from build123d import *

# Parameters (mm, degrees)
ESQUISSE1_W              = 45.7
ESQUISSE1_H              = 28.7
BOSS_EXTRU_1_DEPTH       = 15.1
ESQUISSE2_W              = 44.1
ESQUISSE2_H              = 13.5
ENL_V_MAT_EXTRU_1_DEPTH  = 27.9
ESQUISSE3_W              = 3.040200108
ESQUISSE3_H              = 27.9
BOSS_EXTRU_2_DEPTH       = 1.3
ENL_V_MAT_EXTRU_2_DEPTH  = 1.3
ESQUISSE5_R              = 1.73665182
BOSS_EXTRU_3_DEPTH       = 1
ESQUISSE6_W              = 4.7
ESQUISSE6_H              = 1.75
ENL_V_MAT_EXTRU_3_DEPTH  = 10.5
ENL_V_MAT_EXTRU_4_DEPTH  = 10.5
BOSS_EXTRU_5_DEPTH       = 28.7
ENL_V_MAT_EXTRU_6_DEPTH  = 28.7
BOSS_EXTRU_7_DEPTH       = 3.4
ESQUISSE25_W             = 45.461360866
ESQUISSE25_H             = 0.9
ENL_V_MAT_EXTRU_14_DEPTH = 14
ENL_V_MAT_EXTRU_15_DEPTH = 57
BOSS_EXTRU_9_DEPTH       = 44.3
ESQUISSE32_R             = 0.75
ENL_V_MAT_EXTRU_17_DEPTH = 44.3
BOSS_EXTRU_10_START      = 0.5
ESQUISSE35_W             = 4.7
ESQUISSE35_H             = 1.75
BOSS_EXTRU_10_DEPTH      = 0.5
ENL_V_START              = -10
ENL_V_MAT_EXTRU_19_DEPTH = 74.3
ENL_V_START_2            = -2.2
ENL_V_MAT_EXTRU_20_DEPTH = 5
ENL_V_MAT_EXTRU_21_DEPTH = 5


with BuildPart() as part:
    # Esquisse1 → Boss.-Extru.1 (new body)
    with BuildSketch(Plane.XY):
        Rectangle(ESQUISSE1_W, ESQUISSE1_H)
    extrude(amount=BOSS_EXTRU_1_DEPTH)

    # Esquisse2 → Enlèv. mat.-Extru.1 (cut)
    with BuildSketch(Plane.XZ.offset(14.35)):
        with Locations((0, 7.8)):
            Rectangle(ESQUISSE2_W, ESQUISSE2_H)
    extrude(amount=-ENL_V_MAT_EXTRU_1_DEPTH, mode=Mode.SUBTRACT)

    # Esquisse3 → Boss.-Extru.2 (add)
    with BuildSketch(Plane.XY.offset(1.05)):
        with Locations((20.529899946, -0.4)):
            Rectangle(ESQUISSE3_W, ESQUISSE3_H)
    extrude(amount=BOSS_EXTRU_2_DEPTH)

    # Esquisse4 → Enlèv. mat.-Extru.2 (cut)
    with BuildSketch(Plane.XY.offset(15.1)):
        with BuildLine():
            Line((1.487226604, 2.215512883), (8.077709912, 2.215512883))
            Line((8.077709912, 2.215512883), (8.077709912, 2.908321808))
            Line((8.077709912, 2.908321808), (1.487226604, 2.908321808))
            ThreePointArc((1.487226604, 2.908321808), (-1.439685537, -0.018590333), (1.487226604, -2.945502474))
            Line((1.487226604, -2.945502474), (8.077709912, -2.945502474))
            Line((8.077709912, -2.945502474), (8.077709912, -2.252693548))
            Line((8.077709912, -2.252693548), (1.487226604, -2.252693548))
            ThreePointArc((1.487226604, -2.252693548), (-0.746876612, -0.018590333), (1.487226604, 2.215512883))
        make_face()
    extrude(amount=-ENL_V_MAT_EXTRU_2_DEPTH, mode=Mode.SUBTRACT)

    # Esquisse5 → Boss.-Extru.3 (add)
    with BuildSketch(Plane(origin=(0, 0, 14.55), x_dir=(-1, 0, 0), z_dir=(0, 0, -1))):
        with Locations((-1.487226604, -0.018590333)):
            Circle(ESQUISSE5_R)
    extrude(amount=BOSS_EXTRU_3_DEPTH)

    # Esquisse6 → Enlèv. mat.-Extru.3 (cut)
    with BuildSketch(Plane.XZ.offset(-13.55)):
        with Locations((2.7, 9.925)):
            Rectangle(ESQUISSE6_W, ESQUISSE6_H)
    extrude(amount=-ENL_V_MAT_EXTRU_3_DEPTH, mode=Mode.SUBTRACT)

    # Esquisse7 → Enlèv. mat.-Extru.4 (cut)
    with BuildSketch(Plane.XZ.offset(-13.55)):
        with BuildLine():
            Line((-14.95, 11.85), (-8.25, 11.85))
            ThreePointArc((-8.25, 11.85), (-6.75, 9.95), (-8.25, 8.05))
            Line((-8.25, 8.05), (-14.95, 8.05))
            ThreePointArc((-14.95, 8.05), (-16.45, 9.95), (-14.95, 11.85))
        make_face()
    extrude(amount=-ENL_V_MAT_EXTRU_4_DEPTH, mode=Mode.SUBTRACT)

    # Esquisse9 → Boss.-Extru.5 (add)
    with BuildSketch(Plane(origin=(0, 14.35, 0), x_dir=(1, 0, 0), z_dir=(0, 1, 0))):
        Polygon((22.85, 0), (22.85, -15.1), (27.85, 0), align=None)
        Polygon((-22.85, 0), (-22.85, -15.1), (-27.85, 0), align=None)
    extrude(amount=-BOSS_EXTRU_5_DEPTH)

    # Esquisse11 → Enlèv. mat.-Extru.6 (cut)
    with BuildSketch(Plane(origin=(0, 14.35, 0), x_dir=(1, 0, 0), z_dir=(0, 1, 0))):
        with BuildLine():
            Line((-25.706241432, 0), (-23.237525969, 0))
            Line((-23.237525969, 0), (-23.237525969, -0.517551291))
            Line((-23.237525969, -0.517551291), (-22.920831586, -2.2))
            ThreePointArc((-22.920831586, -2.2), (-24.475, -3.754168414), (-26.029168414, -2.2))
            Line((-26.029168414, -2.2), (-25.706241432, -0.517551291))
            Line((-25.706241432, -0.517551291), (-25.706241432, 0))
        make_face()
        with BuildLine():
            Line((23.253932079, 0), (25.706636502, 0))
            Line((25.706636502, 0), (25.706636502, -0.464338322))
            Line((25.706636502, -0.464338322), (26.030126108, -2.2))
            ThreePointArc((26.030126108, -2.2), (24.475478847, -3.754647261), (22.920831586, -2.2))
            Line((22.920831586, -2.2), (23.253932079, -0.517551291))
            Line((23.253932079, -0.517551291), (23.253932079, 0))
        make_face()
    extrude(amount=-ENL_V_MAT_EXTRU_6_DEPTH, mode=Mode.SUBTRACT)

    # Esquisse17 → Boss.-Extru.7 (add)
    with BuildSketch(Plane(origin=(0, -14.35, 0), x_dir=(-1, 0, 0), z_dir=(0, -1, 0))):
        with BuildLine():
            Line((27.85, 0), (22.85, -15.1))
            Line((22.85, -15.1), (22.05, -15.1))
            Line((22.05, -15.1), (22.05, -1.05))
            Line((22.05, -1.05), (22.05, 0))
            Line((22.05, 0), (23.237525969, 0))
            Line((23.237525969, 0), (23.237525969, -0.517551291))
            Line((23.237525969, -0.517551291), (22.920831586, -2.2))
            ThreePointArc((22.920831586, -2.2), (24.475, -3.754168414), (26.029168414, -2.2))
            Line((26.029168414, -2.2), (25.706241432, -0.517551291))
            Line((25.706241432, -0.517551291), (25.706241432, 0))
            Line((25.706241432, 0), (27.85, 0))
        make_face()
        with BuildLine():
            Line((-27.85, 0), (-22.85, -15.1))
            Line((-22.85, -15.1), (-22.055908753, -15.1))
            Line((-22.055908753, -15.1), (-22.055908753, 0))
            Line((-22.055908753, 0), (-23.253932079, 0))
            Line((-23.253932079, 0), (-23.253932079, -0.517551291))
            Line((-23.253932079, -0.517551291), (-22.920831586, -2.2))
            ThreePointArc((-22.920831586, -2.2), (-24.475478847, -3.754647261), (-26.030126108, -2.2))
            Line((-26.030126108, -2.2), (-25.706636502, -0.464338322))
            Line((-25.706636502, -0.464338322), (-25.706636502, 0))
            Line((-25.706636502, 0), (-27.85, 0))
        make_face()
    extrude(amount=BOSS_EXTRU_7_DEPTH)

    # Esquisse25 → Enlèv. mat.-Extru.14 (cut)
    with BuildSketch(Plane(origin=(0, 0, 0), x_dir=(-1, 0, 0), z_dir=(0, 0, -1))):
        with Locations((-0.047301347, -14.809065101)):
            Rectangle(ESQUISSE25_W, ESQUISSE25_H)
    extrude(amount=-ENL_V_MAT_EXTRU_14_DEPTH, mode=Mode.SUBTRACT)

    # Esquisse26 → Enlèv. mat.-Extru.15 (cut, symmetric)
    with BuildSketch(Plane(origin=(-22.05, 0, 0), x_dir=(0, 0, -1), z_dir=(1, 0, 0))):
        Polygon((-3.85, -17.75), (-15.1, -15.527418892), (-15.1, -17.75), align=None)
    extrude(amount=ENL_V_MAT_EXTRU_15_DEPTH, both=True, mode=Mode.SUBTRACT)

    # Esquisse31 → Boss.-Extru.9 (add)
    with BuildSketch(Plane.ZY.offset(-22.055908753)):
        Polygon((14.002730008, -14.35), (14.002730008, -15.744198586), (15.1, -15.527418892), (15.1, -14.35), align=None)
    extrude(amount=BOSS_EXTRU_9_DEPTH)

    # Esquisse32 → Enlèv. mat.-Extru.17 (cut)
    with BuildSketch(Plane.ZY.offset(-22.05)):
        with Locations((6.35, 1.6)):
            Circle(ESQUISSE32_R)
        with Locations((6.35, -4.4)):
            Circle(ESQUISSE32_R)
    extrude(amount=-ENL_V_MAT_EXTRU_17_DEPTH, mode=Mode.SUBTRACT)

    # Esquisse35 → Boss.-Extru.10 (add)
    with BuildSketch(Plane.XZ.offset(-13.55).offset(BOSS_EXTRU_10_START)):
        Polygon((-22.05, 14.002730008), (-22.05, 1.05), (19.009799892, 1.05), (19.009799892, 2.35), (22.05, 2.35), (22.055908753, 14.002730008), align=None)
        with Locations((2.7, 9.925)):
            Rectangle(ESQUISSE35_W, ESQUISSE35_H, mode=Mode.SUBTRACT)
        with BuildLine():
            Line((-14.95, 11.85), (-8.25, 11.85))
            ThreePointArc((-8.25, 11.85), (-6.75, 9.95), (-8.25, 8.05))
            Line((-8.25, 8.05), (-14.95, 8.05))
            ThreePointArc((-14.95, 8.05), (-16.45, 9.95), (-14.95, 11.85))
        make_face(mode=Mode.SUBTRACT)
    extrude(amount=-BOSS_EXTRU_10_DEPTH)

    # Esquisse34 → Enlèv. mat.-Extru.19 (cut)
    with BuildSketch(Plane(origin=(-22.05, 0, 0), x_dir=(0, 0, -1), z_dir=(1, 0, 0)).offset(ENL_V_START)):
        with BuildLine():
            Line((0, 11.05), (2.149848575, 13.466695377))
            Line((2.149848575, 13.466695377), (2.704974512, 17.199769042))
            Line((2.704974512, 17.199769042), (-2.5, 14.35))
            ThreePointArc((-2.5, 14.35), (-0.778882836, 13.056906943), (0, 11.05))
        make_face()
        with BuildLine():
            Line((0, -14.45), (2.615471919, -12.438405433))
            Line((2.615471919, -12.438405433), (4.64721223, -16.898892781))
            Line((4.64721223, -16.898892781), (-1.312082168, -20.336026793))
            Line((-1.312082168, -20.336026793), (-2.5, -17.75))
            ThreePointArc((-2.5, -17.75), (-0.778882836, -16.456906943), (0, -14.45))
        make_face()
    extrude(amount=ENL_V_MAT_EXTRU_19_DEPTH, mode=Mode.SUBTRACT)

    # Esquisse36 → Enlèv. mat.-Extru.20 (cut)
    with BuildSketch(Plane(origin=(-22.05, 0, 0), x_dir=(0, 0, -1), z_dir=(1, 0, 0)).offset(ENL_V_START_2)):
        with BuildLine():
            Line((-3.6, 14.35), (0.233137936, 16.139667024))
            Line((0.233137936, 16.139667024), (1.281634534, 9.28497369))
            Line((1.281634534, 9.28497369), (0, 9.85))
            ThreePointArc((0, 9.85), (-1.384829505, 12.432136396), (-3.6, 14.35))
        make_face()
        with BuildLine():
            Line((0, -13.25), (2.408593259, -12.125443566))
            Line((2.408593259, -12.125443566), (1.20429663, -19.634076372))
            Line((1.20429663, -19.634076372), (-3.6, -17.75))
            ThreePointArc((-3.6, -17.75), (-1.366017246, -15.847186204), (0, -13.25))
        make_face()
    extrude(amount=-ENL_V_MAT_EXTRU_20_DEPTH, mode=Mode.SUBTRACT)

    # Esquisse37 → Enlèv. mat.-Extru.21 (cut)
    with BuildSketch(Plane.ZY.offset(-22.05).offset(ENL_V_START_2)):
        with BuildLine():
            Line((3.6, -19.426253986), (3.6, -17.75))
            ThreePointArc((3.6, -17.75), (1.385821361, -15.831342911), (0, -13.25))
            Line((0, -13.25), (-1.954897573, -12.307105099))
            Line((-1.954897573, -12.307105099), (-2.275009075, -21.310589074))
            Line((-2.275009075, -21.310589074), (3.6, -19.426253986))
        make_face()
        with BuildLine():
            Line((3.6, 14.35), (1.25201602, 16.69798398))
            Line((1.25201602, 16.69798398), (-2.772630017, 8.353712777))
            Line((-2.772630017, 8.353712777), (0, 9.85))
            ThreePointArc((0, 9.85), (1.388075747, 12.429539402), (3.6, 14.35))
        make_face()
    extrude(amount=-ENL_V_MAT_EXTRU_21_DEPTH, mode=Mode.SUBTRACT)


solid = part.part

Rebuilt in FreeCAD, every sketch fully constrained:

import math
import FreeCAD as App
import Part
import Sketcher
Q = App.Units.Quantity

doc = App.newDocument("Part")
params = doc.addObject("Spreadsheet::Sheet", "Params")
for row, (alias, value) in enumerate([
    ("sketch1_width", "45.7 mm"),
    ("sketch1_height", "28.7 mm"),
    ("pad1_length", "15.1 mm"),
    ("sketch2_width", "44.1 mm"),
    ("sketch2_height", "13.5 mm"),
    ("pocket1_length", "27.9 mm"),
    ("sketch3_height", "27.9 mm"),
    ("pad2_length", "1.3 mm"),
    ("pocket2_length", "1.3 mm"),
    ("pad3_length", "1 mm"),
    ("sketch6_width", "4.7 mm"),
    ("sketch6_height", "1.75 mm"),
    ("pocket3_length", "10.5 mm"),
    ("sketch7_width", "6.7 mm"),
    ("pocket4_length", "10.5 mm"),
    ("sketch8_width", "5 mm"),
    ("sketch8_height", "15.1 mm"),
    ("pad4_length", "28.7 mm"),
    ("pocket5_length", "28.7 mm"),
    ("sketch10_width", "0.8 mm"),
    ("sketch10_height", "15.1 mm"),
    ("pad5_length", "3.4 mm"),
    ("sketch11_height", "0.9 mm"),
    ("pocket6_length", "14 mm"),
    ("sketch12_height", "11.25 mm"),
    ("pocket7_length", "114 mm"),
    ("pad6_length", "44.3 mm"),
    ("sketch14_diameter", "1.5 mm"),
    ("pocket8_length", "44.3 mm"),
    ("sketch15_width", "6.7 mm"),
    ("sketch15_width2", "4.7 mm"),
    ("sketch15_height", "1.3 mm"),
    ("sketch15_height2", "1.75 mm"),
    ("sketch15_height3", "1.9 mm"),
    ("pad7_length", "0.5 mm"),
    ("pocket9_length", "74.3 mm"),
    ("pocket10_length", "5 mm"),
    ("pocket11_length", "5 mm"),
], start=1):
    params.set(f"A{row}", alias)
    params.set(f"B{row}", "=" + value)
    params.setAlias(f"B{row}", alias)

body = doc.addObject("PartDesign::Body", "Body")

# Sketch on XY plane
sketch1 = doc.addObject("Sketcher::SketchObject", "Sketch")
body.addObject(sketch1)
sketch1.AttachmentSupport = (doc.XY_Plane, [""])
sketch1.MapMode = "FlatFace"
sketch1.addGeometry([
    Part.LineSegment(App.Vector(-23, 14, 0), App.Vector(-23, -14, 0)),
    Part.LineSegment(App.Vector(-23, -14, 0), App.Vector(23, -14, 0)),
    Part.LineSegment(App.Vector(23, -14, 0), App.Vector(23, 14, 0)),
    Part.LineSegment(App.Vector(23, 14, 0), App.Vector(-23, 14, 0)),
], False)
sketch1.addConstraint([
    Sketcher.Constraint("Coincident", 0, 2, 1, 1),
    Sketcher.Constraint("Coincident", 1, 2, 2, 1),
    Sketcher.Constraint("Coincident", 2, 2, 3, 1),
    Sketcher.Constraint("Coincident", 3, 2, 0, 1),
    Sketcher.Constraint("Vertical", 0),
    Sketcher.Constraint("Horizontal", 1),
    Sketcher.Constraint("Vertical", 2),
    Sketcher.Constraint("Horizontal", 3),
    Sketcher.Constraint("Symmetric", 0, 2, 2, 2, -1, 1),
    Sketcher.Constraint("DistanceX", 1, 1, 1, 2, 45.7),
    Sketcher.Constraint("DistanceY", 0, 2, 0, 1, 28.7),
])
sketch1.setExpression("Constraints[9]", "Params.sketch1_width")
sketch1.setExpression("Constraints[10]", "Params.sketch1_height")
pad1 = doc.addObject("PartDesign::Pad", "Pad")
body.addObject(pad1)
pad1.Profile = sketch1
pad1.setExpression("Length", "Params.pad1_length")

# Sketch on XZ plane
sketch2 = doc.addObject("Sketcher::SketchObject", "Sketch001")
body.addObject(sketch2)
sketch2.AttachmentSupport = (doc.XZ_Plane, [""])
sketch2.MapMode = "FlatFace"
sketch2.AttachmentOffset = App.Placement(App.Vector(0, 0, 14.35), App.Rotation())
sketch2.addGeometry([
    Part.LineSegment(App.Vector(-22, 15, 0), App.Vector(-22, 1, 0)),
    Part.LineSegment(App.Vector(-22, 1, 0), App.Vector(22, 1, 0)),
    Part.LineSegment(App.Vector(22, 1, 0), App.Vector(22, 15, 0)),
    Part.LineSegment(App.Vector(22, 15, 0), App.Vector(-22, 15, 0)),
], False)
sketch2.addConstraint([
    Sketcher.Constraint("Coincident", 0, 2, 1, 1),
    Sketcher.Constraint("Coincident", 1, 2, 2, 1),
    Sketcher.Constraint("Coincident", 2, 2, 3, 1),
    Sketcher.Constraint("Coincident", 3, 2, 0, 1),
    Sketcher.Constraint("Vertical", 0),
    Sketcher.Constraint("Horizontal", 1),
    Sketcher.Constraint("Vertical", 2),
    Sketcher.Constraint("Horizontal", 3),
    Sketcher.Constraint("DistanceX", 1, 1, 1, 2, 44.1),
    Sketcher.Constraint("DistanceY", 0, 2, 0, 1, 13.5),
    Sketcher.Constraint("DistanceX", 0, 2, -1, 1, 22.05),
    Sketcher.Constraint("DistanceY", -1, 1, 0, 2, 1.05),
])
sketch2.setExpression("Constraints[8]", "Params.sketch2_width")
sketch2.setExpression("Constraints[9]", "Params.sketch2_height")
pocket1 = doc.addObject("PartDesign::Pocket", "Pocket")
body.addObject(pocket1)
pocket1.Profile = sketch2
pocket1.setExpression("Length", "Params.pocket1_length")

# Sketch on XY plane
sketch3 = doc.addObject("Sketcher::SketchObject", "Sketch002")
body.addObject(sketch3)
sketch3.AttachmentSupport = (doc.XY_Plane, [""])
sketch3.MapMode = "FlatFace"
sketch3.AttachmentOffset = App.Placement(App.Vector(0, 0, 1.05), App.Rotation())
sketch3.addGeometry([
    Part.LineSegment(App.Vector(19, 13.6, 0), App.Vector(19, -14.3, 0)),
    Part.LineSegment(App.Vector(19, -14.3, 0), App.Vector(22.1, -14.3, 0)),
    Part.LineSegment(App.Vector(22.1, -14.3, 0), App.Vector(22.1, 13.6, 0)),
    Part.LineSegment(App.Vector(22.1, 13.6, 0), App.Vector(19, 13.6, 0)),
], False)
sketch3.addConstraint([
    Sketcher.Constraint("Coincident", 0, 2, 1, 1),
    Sketcher.Constraint("Coincident", 1, 2, 2, 1),
    Sketcher.Constraint("Coincident", 2, 2, 3, 1),
    Sketcher.Constraint("Coincident", 3, 2, 0, 1),
    Sketcher.Constraint("Vertical", 0),
    Sketcher.Constraint("Horizontal", 1),
    Sketcher.Constraint("Vertical", 2),
    Sketcher.Constraint("Horizontal", 3),
    Sketcher.Constraint("DistanceY", 0, 2, 0, 1, 27.9),
    Sketcher.Constraint("DistanceY", 0, 2, -1, 1, 14.35),
    Sketcher.Constraint("DistanceX", -1, 1, 1, 2, 22.05),
    Sketcher.Constraint("DistanceX", 1, 1, 1, 2, 3.0402),
])
sketch3.setExpression("Constraints[8]", "Params.sketch3_height")
pad2 = doc.addObject("PartDesign::Pad", "Pad001")
body.addObject(pad2)
pad2.Profile = sketch3
pad2.setExpression("Length", "Params.pad2_length")

# Sketch on XY plane
sketch4 = doc.addObject("Sketcher::SketchObject", "Sketch003")
body.addObject(sketch4)
sketch4.AttachmentSupport = (doc.XY_Plane, [""])
sketch4.MapMode = "FlatFace"
sketch4.AttachmentOffset = App.Placement(App.Vector(0, 0, 15.1), App.Rotation())
sketch4.addGeometry([
    Part.LineSegment(App.Vector(1.5, 2.2, 0), App.Vector(8.1, 2.2, 0)),  # 0
    Part.LineSegment(App.Vector(8.1, 2.2, 0), App.Vector(8.1, 2.9, 0)),  # 1
    Part.LineSegment(App.Vector(8.1, 2.9, 0), App.Vector(1.5, 2.9, 0)),  # 2
    Part.ArcOfCircle(Part.Circle(App.Vector(1.5, 0, 0), App.Vector(0, 0, 1), 2.9), math.radians(90), math.radians(270)),  # 3
    Part.LineSegment(App.Vector(1.5, -2.9, 0), App.Vector(8.1, -2.9, 0)),  # 4
    Part.LineSegment(App.Vector(8.1, -2.9, 0), App.Vector(8.1, -2.3, 0)),  # 5
    Part.LineSegment(App.Vector(8.1, -2.3, 0), App.Vector(1.5, -2.3, 0)),  # 6
    Part.ArcOfCircle(Part.Circle(App.Vector(1.5, 0, 0), App.Vector(0, 0, 1), 2.2), math.radians(90), math.radians(270)),  # 7
], False)
sketch4.addConstraint([
    Sketcher.Constraint("Coincident", 0, 2, 1, 1),
    Sketcher.Constraint("Coincident", 1, 2, 2, 1),
    Sketcher.Constraint("Tangent", 2, 2, 3, 1),
    Sketcher.Constraint("Tangent", 3, 2, 4, 1),
    Sketcher.Constraint("Coincident", 4, 2, 5, 1),
    Sketcher.Constraint("Coincident", 5, 2, 6, 1),
    Sketcher.Constraint("Tangent", 6, 2, 7, 2),
    Sketcher.Constraint("Tangent", 7, 1, 0, 1),
    Sketcher.Constraint("Horizontal", 0),
    Sketcher.Constraint("Vertical", 1),
    Sketcher.Constraint("Horizontal", 2),
    Sketcher.Constraint("Horizontal", 4),
    Sketcher.Constraint("Vertical", 5),
    Sketcher.Constraint("Horizontal", 6),
    Sketcher.Constraint("Coincident", 7, 3, 3, 3),
    Sketcher.Constraint("Vertical", 1, 2, 4, 2),
    Sketcher.Constraint("Radius", 3, 2.926912),
    Sketcher.Constraint("Radius", 7, 2.234103),
    Sketcher.Constraint("DistanceX", 0, 1, 0, 2, 6.590483),
    Sketcher.Constraint("DistanceY", 3, 3, -1, 1, 0.01859),
    Sketcher.Constraint("DistanceX", -1, 1, 0, 2, 8.07771),
])
pocket2 = doc.addObject("PartDesign::Pocket", "Pocket001")
body.addObject(pocket2)
pocket2.Profile = sketch4
pocket2.setExpression("Length", "Params.pocket2_length")

# Sketch on XY plane
sketch5 = doc.addObject("Sketcher::SketchObject", "Sketch004")
body.addObject(sketch5)
sketch5.AttachmentSupport = (doc.XY_Plane, [""])
sketch5.MapMode = "FlatFace"
sketch5.AttachmentOffset = App.Placement(App.Vector(0, 0, 14.55), App.Rotation())
sketch5.addGeometry(Part.Circle(App.Vector(1.5, 0, 0), App.Vector(0, 0, 1), 1.7), False)
sketch5.addConstraint([
    Sketcher.Constraint("Diameter", 0, 3.473304),
    Sketcher.Constraint("DistanceY", 0, 3, -1, 1, 0.01859),
    Sketcher.Constraint("DistanceX", -1, 1, 0, 3, 1.487227),
])
pad3 = doc.addObject("PartDesign::Pad", "Pad002")
body.addObject(pad3)
pad3.Profile = sketch5
pad3.setExpression("Length", "Params.pad3_length")
pad3.Reversed = True

# Sketch on XZ plane
sketch6 = doc.addObject("Sketcher::SketchObject", "Sketch005")
body.addObject(sketch6)
sketch6.AttachmentSupport = (doc.XZ_Plane, [""])
sketch6.MapMode = "FlatFace"
sketch6.AttachmentOffset = App.Placement(App.Vector(0, 0, -13.55), App.Rotation())
sketch6.addGeometry([
    Part.LineSegment(App.Vector(0.3, 10.8, 0), App.Vector(0.3, 9.1, 0)),
    Part.LineSegment(App.Vector(0.3, 9.1, 0), App.Vector(5, 9.1, 0)),
    Part.LineSegment(App.Vector(5, 9.1, 0), App.Vector(5, 10.8, 0)),
    Part.LineSegment(App.Vector(5, 10.8, 0), App.Vector(0.3, 10.8, 0)),
], False)
sketch6.addConstraint([
    Sketcher.Constraint("Coincident", 0, 2, 1, 1),
    Sketcher.Constraint("Coincident", 1, 2, 2, 1),
    Sketcher.Constraint("Coincident", 2, 2, 3, 1),
    Sketcher.Constraint("Coincident", 3, 2, 0, 1),
    Sketcher.Constraint("Vertical", 0),
    Sketcher.Constraint("Horizontal", 1),
    Sketcher.Constraint("Vertical", 2),
    Sketcher.Constraint("Horizontal", 3),
    Sketcher.Constraint("DistanceX", 1, 1, 1, 2, 4.7),
    Sketcher.Constraint("DistanceY", 0, 2, 0, 1, 1.75),
    Sketcher.Constraint("DistanceY", -1, 1, 2, 2, 10.8),
    Sketcher.Constraint("DistanceX", -1, 1, 0, 2, 0.35),
])
sketch6.setExpression("Constraints[8]", "Params.sketch6_width")
sketch6.setExpression("Constraints[9]", "Params.sketch6_height")
pocket3 = doc.addObject("PartDesign::Pocket", "Pocket002")
body.addObject(pocket3)
pocket3.Profile = sketch6
pocket3.setExpression("Length", "Params.pocket3_length")

# Sketch on XZ plane
sketch7 = doc.addObject("Sketcher::SketchObject", "Sketch006")
body.addObject(sketch7)
sketch7.AttachmentSupport = (doc.XZ_Plane, [""])
sketch7.MapMode = "FlatFace"
sketch7.AttachmentOffset = App.Placement(App.Vector(0, 0, -13.55), App.Rotation())
sketch7.addGeometry([
    Part.LineSegment(App.Vector(-8.2, 11.8, 0), App.Vector(-14.9, 11.8, 0)),
    Part.ArcOfCircle(Part.Circle(App.Vector(-14.5, 9.9, 0), App.Vector(0, 0, 1), 2), math.radians(103), math.radians(257)),
    Part.LineSegment(App.Vector(-14.9, 8.1, 0), App.Vector(-8.2, 8.1, 0)),
    Part.ArcOfCircle(Part.Circle(App.Vector(-8.7, 9.9, 0), App.Vector(0, 0, 1), 2), math.radians(-77), math.radians(77)),
], False)
sketch7.addConstraint([
    Sketcher.Constraint("Coincident", 0, 2, 1, 1),
    Sketcher.Constraint("Coincident", 1, 2, 2, 1),
    Sketcher.Constraint("Coincident", 2, 2, 3, 1),
    Sketcher.Constraint("Coincident", 3, 2, 0, 1),
    Sketcher.Constraint("Horizontal", 0),
    Sketcher.Constraint("Horizontal", 2),
    Sketcher.Constraint("Equal", 1, 3),
    Sketcher.Constraint("Horizontal", 1, 3, 3, 3),
    Sketcher.Constraint("Vertical", 0, 2, 1, 2),
    Sketcher.Constraint("DistanceX", 0, 2, 0, 1, 6.7),
    Sketcher.Constraint("DistanceY", 1, 3, 0, 2, 1.9),
    Sketcher.Constraint("DistanceY", -1, 1, 1, 3, 9.95),
    Sketcher.Constraint("DistanceX", 0, 2, -1, 1, 14.95),
    Sketcher.Constraint("Radius", 1, 1.953333),
])
sketch7.setExpression("Constraints[9]", "Params.sketch7_width")
pocket4 = doc.addObject("PartDesign::Pocket", "Pocket003")
body.addObject(pocket4)
pocket4.Profile = sketch7
pocket4.setExpression("Length", "Params.pocket4_length")

# Sketch on XZ plane
sketch8 = doc.addObject("Sketcher::SketchObject", "Sketch007")
body.addObject(sketch8)
sketch8.AttachmentSupport = (doc.XZ_Plane, [""])
sketch8.MapMode = "FlatFace"
sketch8.AttachmentOffset = App.Placement(App.Vector(0, 0, -14.35), App.Rotation())
sketch8.addGeometry([
    Part.LineSegment(App.Vector(23, 0, 0), App.Vector(23, 15, 0)),  # 0
    Part.LineSegment(App.Vector(23, 15, 0), App.Vector(28, 0, 0)),  # 1
    Part.LineSegment(App.Vector(28, 0, 0), App.Vector(23, 0, 0)),  # 2
    Part.LineSegment(App.Vector(-23, 15, 0), App.Vector(-23, 0, 0)),  # 3
    Part.LineSegment(App.Vector(-23, 0, 0), App.Vector(-28, 0, 0)),  # 4
    Part.LineSegment(App.Vector(-28, 0, 0), App.Vector(-23, 15, 0)),  # 5
], False)
sketch8.addConstraint([
    Sketcher.Constraint("Coincident", 0, 2, 1, 1),
    Sketcher.Constraint("Coincident", 1, 2, 2, 1),
    Sketcher.Constraint("Coincident", 2, 2, 0, 1),
    Sketcher.Constraint("Coincident", 3, 2, 4, 1),
    Sketcher.Constraint("Coincident", 4, 2, 5, 1),
    Sketcher.Constraint("Coincident", 5, 2, 3, 1),
    Sketcher.Constraint("Vertical", 0),
    Sketcher.Constraint("Horizontal", 2),
    Sketcher.Constraint("Vertical", 3),
    Sketcher.Constraint("Horizontal", 4),
    Sketcher.Constraint("Symmetric", 2, 2, 3, 2, -1, 1),
    Sketcher.Constraint("Symmetric", 1, 2, 4, 2, -2),
    Sketcher.Constraint("Horizontal", 0, 2, 5, 2),
    Sketcher.Constraint("DistanceX", 2, 2, 2, 1, 5.0),
    Sketcher.Constraint("DistanceY", 0, 1, 0, 2, 15.1),
    Sketcher.Constraint("DistanceX", 3, 2, 2, 2, 45.7),
])
sketch8.setExpression("Constraints[13]", "Params.sketch8_width")
sketch8.setExpression("Constraints[14]", "Params.sketch8_height")
pad4 = doc.addObject("PartDesign::Pad", "Pad003")
body.addObject(pad4)
pad4.Profile = sketch8
pad4.setExpression("Length", "Params.pad4_length")

# Sketch on XZ plane
sketch9 = doc.addObject("Sketcher::SketchObject", "Sketch008")
body.addObject(sketch9)
sketch9.AttachmentSupport = (doc.XZ_Plane, [""])
sketch9.MapMode = "FlatFace"
sketch9.AttachmentOffset = App.Placement(App.Vector(0, 0, -14.35), App.Rotation())
sketch9.addGeometry([
    Part.LineSegment(App.Vector(-23.24, 0, 0), App.Vector(-25.71, 0, 0)),  # 0
    Part.LineSegment(App.Vector(-25.71, 0, 0), App.Vector(-25.71, 0.52, 0)),  # 1
    Part.LineSegment(App.Vector(-25.71, 0.52, 0), App.Vector(-26.03, 2.2, 0)),  # 2
    Part.ArcOfCircle(Part.Circle(App.Vector(-24.48, 2.2, 0), App.Vector(0, 0, 1), 1.55), math.radians(0), math.radians(180)),  # 3
    Part.LineSegment(App.Vector(-22.92, 2.2, 0), App.Vector(-23.24, 0.52, 0)),  # 4
    Part.LineSegment(App.Vector(-23.24, 0.52, 0), App.Vector(-23.24, 0, 0)),  # 5
    Part.LineSegment(App.Vector(25.71, 0, 0), App.Vector(23.25, 0, 0)),  # 6
    Part.LineSegment(App.Vector(23.25, 0, 0), App.Vector(23.25, 0.52, 0)),  # 7
    Part.LineSegment(App.Vector(23.25, 0.52, 0), App.Vector(22.92, 2.2, 0)),  # 8
    Part.ArcOfCircle(Part.Circle(App.Vector(24.48, 2.2, 0), App.Vector(0, 0, 1), 1.55), math.radians(0), math.radians(180)),  # 9
    Part.LineSegment(App.Vector(26.03, 2.2, 0), App.Vector(25.71, 0.46, 0)),  # 10
    Part.LineSegment(App.Vector(25.71, 0.46, 0), App.Vector(25.71, 0, 0)),  # 11
], False)
sketch9.addConstraint([
    Sketcher.Constraint("Coincident", 0, 2, 1, 1),
    Sketcher.Constraint("Coincident", 1, 2, 2, 1),
    Sketcher.Constraint("Coincident", 2, 2, 3, 2),
    Sketcher.Constraint("Coincident", 3, 1, 4, 1),
    Sketcher.Constraint("Coincident", 4, 2, 5, 1),
    Sketcher.Constraint("Coincident", 5, 2, 0, 1),
    Sketcher.Constraint("Coincident", 6, 2, 7, 1),
    Sketcher.Constraint("Coincident", 7, 2, 8, 1),
    Sketcher.Constraint("Coincident", 8, 2, 9, 2),
    Sketcher.Constraint("Coincident", 9, 1, 10, 1),
    Sketcher.Constraint("Coincident", 10, 2, 11, 1),
    Sketcher.Constraint("Coincident", 11, 2, 6, 1),
    Sketcher.Constraint("Horizontal", 0),
    Sketcher.Constraint("Vertical", 1),
    Sketcher.Constraint("Vertical", 5),
    Sketcher.Constraint("Horizontal", 6),
    Sketcher.Constraint("Vertical", 7),
    Sketcher.Constraint("Vertical", 11),
    Sketcher.Constraint("Symmetric", 3, 1, 8, 2, -2),
    Sketcher.Constraint("PointOnObject", 0, 2, -1),
    Sketcher.Constraint("PointOnObject", 6, 2, -1),
    Sketcher.Constraint("Horizontal", 3, 3, 9, 3),
    Sketcher.Constraint("Horizontal", 9, 3, 2, 2),
    Sketcher.Constraint("Horizontal", 2, 2, 3, 1),
    Sketcher.Constraint("Horizontal", 1, 2, 4, 2),
    Sketcher.Constraint("Horizontal", 4, 2, 7, 2),
    Sketcher.Constraint("Horizontal", 8, 2, 9, 1),
    Sketcher.Constraint("DistanceY", -1, 1, 3, 3, 2.2),
    Sketcher.Constraint("Radius", 3, 1.554168),
    Sketcher.Constraint("DistanceX", 3, 3, -1, 1, 24.475),
    Sketcher.Constraint("Radius", 9, 1.554647),
    Sketcher.Constraint("DistanceY", 1, 1, 1, 2, 0.517551),
    Sketcher.Constraint("DistanceY", 11, 2, 11, 1, 0.464338),
    Sketcher.Constraint("DistanceX", 8, 2, 7, 2, 0.3331),
    Sketcher.Constraint("Distance", 2, 1.71316),
    Sketcher.Constraint("Distance", 10, 1.76555),
    Sketcher.Constraint("DistanceX", 0, 2, 0, 1, 2.468715),
])
pocket5 = doc.addObject("PartDesign::Pocket", "Pocket004")
body.addObject(pocket5)
pocket5.Profile = sketch9
pocket5.setExpression("Length", "Params.pocket5_length")
pocket5.Reversed = True

# Sketch on XZ plane
sketch10 = doc.addObject("Sketcher::SketchObject", "Sketch009")
body.addObject(sketch10)
sketch10.AttachmentSupport = (doc.XZ_Plane, [""])
sketch10.MapMode = "FlatFace"
sketch10.AttachmentOffset = App.Placement(App.Vector(0, 0, 14.35), App.Rotation())
sketch10.addGeometry([
    Part.LineSegment(App.Vector(-22.85, 15.1, 0), App.Vector(-27.85, 0, 0)),  # 0
    Part.LineSegment(App.Vector(-27.85, 0, 0), App.Vector(-25.71, 0, 0)),  # 1
    Part.LineSegment(App.Vector(-25.71, 0, 0), App.Vector(-25.71, 0.52, 0)),  # 2
    Part.LineSegment(App.Vector(-25.71, 0.52, 0), App.Vector(-26.03, 2.2, 0)),  # 3
    Part.ArcOfCircle(Part.Circle(App.Vector(-24.48, 2.2, 0), App.Vector(0, 0, 1), 1.55), math.radians(0), math.radians(180)),  # 4
    Part.LineSegment(App.Vector(-22.92, 2.2, 0), App.Vector(-23.24, 0.52, 0)),  # 5
    Part.LineSegment(App.Vector(-23.24, 0.52, 0), App.Vector(-23.24, 0, 0)),  # 6
    Part.LineSegment(App.Vector(-23.24, 0, 0), App.Vector(-22.05, 0, 0)),  # 7
    Part.LineSegment(App.Vector(-22.05, 0, 0), App.Vector(-22.05, 15.1, 0)),  # 8
    Part.LineSegment(App.Vector(-22.05, 15.1, 0), App.Vector(-22.85, 15.1, 0)),  # 9
    Part.LineSegment(App.Vector(27.85, 0, 0), App.Vector(22.85, 15.1, 0)),  # 10
    Part.LineSegment(App.Vector(22.85, 15.1, 0), App.Vector(22.06, 15.1, 0)),  # 11
    Part.LineSegment(App.Vector(22.06, 15.1, 0), App.Vector(22.06, 0, 0)),  # 12
    Part.LineSegment(App.Vector(22.06, 0, 0), App.Vector(23.25, 0, 0)),  # 13
    Part.LineSegment(App.Vector(23.25, 0, 0), App.Vector(23.25, 0.52, 0)),  # 14
    Part.LineSegment(App.Vector(23.25, 0.52, 0), App.Vector(22.92, 2.2, 0)),  # 15
    Part.ArcOfCircle(Part.Circle(App.Vector(24.48, 2.2, 0), App.Vector(0, 0, 1), 1.55), math.radians(0), math.radians(180)),  # 16
    Part.LineSegment(App.Vector(26.03, 2.2, 0), App.Vector(25.71, 0.46, 0)),  # 17
    Part.LineSegment(App.Vector(25.71, 0.46, 0), App.Vector(25.71, 0, 0)),  # 18
    Part.LineSegment(App.Vector(25.71, 0, 0), App.Vector(27.85, 0, 0)),  # 19
], False)
sketch10.addConstraint([
    Sketcher.Constraint("Coincident", 0, 2, 1, 1),
    Sketcher.Constraint("Coincident", 1, 2, 2, 1),
    Sketcher.Constraint("Coincident", 2, 2, 3, 1),
    Sketcher.Constraint("Coincident", 3, 2, 4, 2),
    Sketcher.Constraint("Coincident", 4, 1, 5, 1),
    Sketcher.Constraint("Coincident", 5, 2, 6, 1),
    Sketcher.Constraint("Coincident", 6, 2, 7, 1),
    Sketcher.Constraint("Coincident", 7, 2, 8, 1),
    Sketcher.Constraint("Coincident", 8, 2, 9, 1),
    Sketcher.Constraint("Coincident", 9, 2, 0, 1),
    Sketcher.Constraint("Coincident", 10, 2, 11, 1),
    Sketcher.Constraint("Coincident", 11, 2, 12, 1),
    Sketcher.Constraint("Coincident", 12, 2, 13, 1),
    Sketcher.Constraint("Coincident", 13, 2, 14, 1),
    Sketcher.Constraint("Coincident", 14, 2, 15, 1),
    Sketcher.Constraint("Coincident", 15, 2, 16, 2),
    Sketcher.Constraint("Coincident", 16, 1, 17, 1),
    Sketcher.Constraint("Coincident", 17, 2, 18, 1),
    Sketcher.Constraint("Coincident", 18, 2, 19, 1),
    Sketcher.Constraint("Coincident", 19, 2, 10, 1),
    Sketcher.Constraint("Horizontal", 1),
    Sketcher.Constraint("Vertical", 2),
    Sketcher.Constraint("Vertical", 6),
    Sketcher.Constraint("Horizontal", 7),
    Sketcher.Constraint("Vertical", 8),
    Sketcher.Constraint("Horizontal", 9),
    Sketcher.Constraint("Horizontal", 11),
    Sketcher.Constraint("Vertical", 12),
    Sketcher.Constraint("Horizontal", 13),
    Sketcher.Constraint("Vertical", 14),
    Sketcher.Constraint("Vertical", 18),
    Sketcher.Constraint("Horizontal", 19),
    Sketcher.Constraint("Symmetric", 0, 2, 19, 2, -1, 1),
    Sketcher.Constraint("Symmetric", 9, 2, 10, 2, -2),
    Sketcher.Constraint("Symmetric", 4, 1, 15, 2, -2),
    Sketcher.Constraint("PointOnObject", 0, 2, -1),
    Sketcher.Constraint("PointOnObject", 6, 2, -1),
    Sketcher.Constraint("PointOnObject", 12, 2, -1),
    Sketcher.Constraint("Horizontal", 4, 3, 16, 3),
    Sketcher.Constraint("Horizontal", 16, 3, 3, 2),
    Sketcher.Constraint("Horizontal", 3, 2, 4, 1),
    Sketcher.Constraint("Horizontal", 2, 2, 5, 2),
    Sketcher.Constraint("Horizontal", 5, 2, 14, 2),
    Sketcher.Constraint("Horizontal", 15, 2, 16, 1),
    Sketcher.Constraint("DistanceX", 9, 2, 9, 1, 0.8),
    Sketcher.Constraint("DistanceY", 8, 1, 8, 2, 15.1),
    Sketcher.Constraint("DistanceY", -1, 1, 4, 3, 2.2),
    Sketcher.Constraint("DistanceX", 8, 2, 10, 2, 44.9),
    Sketcher.Constraint("DistanceX", 0, 2, -1, 1, 27.85),
    Sketcher.Constraint("Radius", 4, 1.554168),
    Sketcher.Constraint("DistanceX", 4, 3, -1, 1, 24.475),
    Sketcher.Constraint("Radius", 16, 1.554647),
    Sketcher.Constraint("DistanceX", 1, 1, 1, 2, 2.143759),
    Sketcher.Constraint("DistanceX", 11, 2, 11, 1, 0.794091),
    Sketcher.Constraint("DistanceY", 2, 1, 2, 2, 0.517551),
    Sketcher.Constraint("DistanceY", 18, 2, 18, 1, 0.464338),
    Sketcher.Constraint("DistanceX", 15, 2, 14, 2, 0.3331),
    Sketcher.Constraint("Distance", 17, 1.76555),
    Sketcher.Constraint("DistanceX", 7, 1, 7, 2, 1.187526),
])
sketch10.setExpression("Constraints[44]", "Params.sketch10_width")
sketch10.setExpression("Constraints[45]", "Params.sketch10_height")
pad5 = doc.addObject("PartDesign::Pad", "Pad004")
body.addObject(pad5)
pad5.Profile = sketch10
pad5.setExpression("Length", "Params.pad5_length")

# Sketch on XY plane
sketch11 = doc.addObject("Sketcher::SketchObject", "Sketch010")
body.addObject(sketch11)
sketch11.AttachmentSupport = (doc.XY_Plane, [""])
sketch11.MapMode = "FlatFace"
sketch11.addGeometry([
    Part.LineSegment(App.Vector(22.8, -14.4, 0), App.Vector(22.8, -15.3, 0)),
    Part.LineSegment(App.Vector(22.8, -15.3, 0), App.Vector(-22.7, -15.3, 0)),
    Part.LineSegment(App.Vector(-22.7, -15.3, 0), App.Vector(-22.7, -14.4, 0)),
    Part.LineSegment(App.Vector(-22.7, -14.4, 0), App.Vector(22.8, -14.4, 0)),
], False)
sketch11.addConstraint([
    Sketcher.Constraint("Coincident", 0, 2, 1, 1),
    Sketcher.Constraint("Coincident", 1, 2, 2, 1),
    Sketcher.Constraint("Coincident", 2, 2, 3, 1),
    Sketcher.Constraint("Coincident", 3, 2, 0, 1),
    Sketcher.Constraint("Vertical", 0),
    Sketcher.Constraint("Horizontal", 1),
    Sketcher.Constraint("Vertical", 2),
    Sketcher.Constraint("Horizontal", 3),
    Sketcher.Constraint("DistanceY", 0, 2, 0, 1, 0.9),
    Sketcher.Constraint("DistanceX", 1, 2, 1, 1, 45.461361),
    Sketcher.Constraint("DistanceX", -1, 1, 0, 2, 22.777982),
    Sketcher.Constraint("DistanceY", 0, 2, -1, 1, 15.259065),
])
sketch11.setExpression("Constraints[8]", "Params.sketch11_height")
pocket6 = doc.addObject("PartDesign::Pocket", "Pocket005")
body.addObject(pocket6)
pocket6.Profile = sketch11
pocket6.setExpression("Length", "Params.pocket6_length")
pocket6.Reversed = True

# Sketch on YZ plane
sketch12 = doc.addObject("Sketcher::SketchObject", "Sketch011")
body.addObject(sketch12)
sketch12.AttachmentSupport = (doc.YZ_Plane, [""])
sketch12.MapMode = "FlatFace"
sketch12.AttachmentOffset = App.Placement(App.Vector(0, 0, -22.05), App.Rotation())
sketch12.addGeometry([
    Part.LineSegment(App.Vector(-17.8, 3.9, 0), App.Vector(-15.5, 15.1, 0)),
    Part.LineSegment(App.Vector(-15.5, 15.1, 0), App.Vector(-17.8, 15.1, 0)),
    Part.LineSegment(App.Vector(-17.8, 15.1, 0), App.Vector(-17.8, 3.9, 0)),
], False)
sketch12.addConstraint([
    Sketcher.Constraint("Coincident", 0, 2, 1, 1),
    Sketcher.Constraint("Coincident", 1, 2, 2, 1),
    Sketcher.Constraint("Coincident", 2, 2, 0, 1),
    Sketcher.Constraint("Horizontal", 1),
    Sketcher.Constraint("Vertical", 2),
    Sketcher.Constraint("DistanceY", 2, 2, 2, 1, 11.25),
    Sketcher.Constraint("DistanceY", -1, 1, 0, 2, 15.1),
    Sketcher.Constraint("DistanceX", 1, 2, -1, 1, 17.75),
    Sketcher.Constraint("DistanceX", 1, 2, 1, 1, 2.222581),
])
sketch12.setExpression("Constraints[5]", "Params.sketch12_height")
pocket7 = doc.addObject("PartDesign::Pocket", "Pocket006")
body.addObject(pocket7)
pocket7.Profile = sketch12
pocket7.setExpression("Length", "Params.pocket7_length")
pocket7.Midplane = True

# Sketch on YZ plane
sketch13 = doc.addObject("Sketcher::SketchObject", "Sketch012")
body.addObject(sketch13)
sketch13.AttachmentSupport = (doc.YZ_Plane, [""])
sketch13.MapMode = "FlatFace"
sketch13.AttachmentOffset = App.Placement(App.Vector(0, 0, 22.055909), App.Rotation())
sketch13.addGeometry([
    Part.LineSegment(App.Vector(-14.3, 14, 0), App.Vector(-15.7, 14, 0)),
    Part.LineSegment(App.Vector(-15.7, 14, 0), App.Vector(-15.5, 15.1, 0)),
    Part.LineSegment(App.Vector(-15.5, 15.1, 0), App.Vector(-14.3, 15.1, 0)),
    Part.LineSegment(App.Vector(-14.3, 15.1, 0), App.Vector(-14.3, 14, 0)),
], False)
sketch13.addConstraint([
    Sketcher.Constraint("Coincident", 0, 2, 1, 1),
    Sketcher.Constraint("Coincident", 1, 2, 2, 1),
    Sketcher.Constraint("Coincident", 2, 2, 3, 1),
    Sketcher.Constraint("Coincident", 3, 2, 0, 1),
    Sketcher.Constraint("Horizontal", 0),
    Sketcher.Constraint("Horizontal", 2),
    Sketcher.Constraint("Vertical", 3),
    Sketcher.Constraint("DistanceY", -1, 1, 1, 2, 15.1),
    Sketcher.Constraint("DistanceX", 2, 2, -1, 1, 14.35),
    Sketcher.Constraint("DistanceX", 0, 2, 0, 1, 1.394199),
    Sketcher.Constraint("DistanceX", 2, 1, 2, 2, 1.177419),
    Sketcher.Constraint("DistanceY", 3, 2, 3, 1, 1.09727),
])
pad6 = doc.addObject("PartDesign::Pad", "Pad005")
body.addObject(pad6)
pad6.Profile = sketch13
pad6.setExpression("Length", "Params.pad6_length")
pad6.Reversed = True

# Sketch on YZ plane
sketch14 = doc.addObject("Sketcher::SketchObject", "Sketch013")
body.addObject(sketch14)
sketch14.AttachmentSupport = (doc.YZ_Plane, [""])
sketch14.MapMode = "FlatFace"
sketch14.AttachmentOffset = App.Placement(App.Vector(0, 0, 22.05), App.Rotation())
sketch14.addGeometry([
    Part.Circle(App.Vector(1.6, 6.3, 0), App.Vector(0, 0, 1), 0.8),
    Part.Circle(App.Vector(-4.4, 6.3, 0), App.Vector(0, 0, 1), 0.8),
], False)
sketch14.addConstraint([
    Sketcher.Constraint("Equal", 0, 1),
    Sketcher.Constraint("Horizontal", 0, 3, 1, 3),
    Sketcher.Constraint("Diameter", 0, 1.5),
    Sketcher.Constraint("DistanceX", 1, 3, 0, 3, 6.0),
    Sketcher.Constraint("DistanceX", -1, 1, 0, 3, 1.6),
    Sketcher.Constraint("DistanceY", -1, 1, 0, 3, 6.35),
])
sketch14.setExpression("Constraints[2]", "Params.sketch14_diameter")
pocket8 = doc.addObject("PartDesign::Pocket", "Pocket007")
body.addObject(pocket8)
pocket8.Profile = sketch14
pocket8.setExpression("Length", "Params.pocket8_length")
pocket8.Reversed = True

# Sketch on XZ plane
sketch15 = doc.addObject("Sketcher::SketchObject", "Sketch014")
body.addObject(sketch15)
sketch15.AttachmentSupport = (doc.XZ_Plane, [""])
sketch15.MapMode = "FlatFace"
sketch15.AttachmentOffset = App.Placement(App.Vector(0, 0, -13.05), App.Rotation())
sketch15.addGeometry([
    Part.LineSegment(App.Vector(-22.1, 14, 0), App.Vector(-22.1, 1.1, 0)),  # 0
    Part.LineSegment(App.Vector(-22.1, 1.1, 0), App.Vector(19, 1.1, 0)),  # 1
    Part.LineSegment(App.Vector(19, 1.1, 0), App.Vector(19, 2.4, 0)),  # 2
    Part.LineSegment(App.Vector(19, 2.4, 0), App.Vector(22.1, 2.4, 0)),  # 3
    Part.LineSegment(App.Vector(22.1, 2.4, 0), App.Vector(22.1, 14, 0)),  # 4
    Part.LineSegment(App.Vector(22.1, 14, 0), App.Vector(-22.1, 14, 0)),  # 5
    Part.ArcOfCircle(Part.Circle(App.Vector(-14.5, 9.9, 0), App.Vector(0, 0, 1), 2), math.radians(103), math.radians(257)),  # 6
    Part.LineSegment(App.Vector(-14.9, 11.8, 0), App.Vector(-8.2, 11.8, 0)),  # 7
    Part.ArcOfCircle(Part.Circle(App.Vector(-8.7, 9.9, 0), App.Vector(0, 0, 1), 2), math.radians(-77), math.radians(77)),  # 8
    Part.LineSegment(App.Vector(-8.2, 8.1, 0), App.Vector(-14.9, 8.1, 0)),  # 9
    Part.LineSegment(App.Vector(5, 9.1, 0), App.Vector(0.3, 9.1, 0)),  # 10
    Part.LineSegment(App.Vector(0.3, 9.1, 0), App.Vector(0.3, 10.8, 0)),  # 11
    Part.LineSegment(App.Vector(0.3, 10.8, 0), App.Vector(5, 10.8, 0)),  # 12
    Part.LineSegment(App.Vector(5, 10.8, 0), App.Vector(5, 9.1, 0)),  # 13
], False)
sketch15.addConstraint([
    Sketcher.Constraint("Coincident", 0, 2, 1, 1),
    Sketcher.Constraint("Coincident", 1, 2, 2, 1),
    Sketcher.Constraint("Coincident", 2, 2, 3, 1),
    Sketcher.Constraint("Coincident", 3, 2, 4, 1),
    Sketcher.Constraint("Coincident", 4, 2, 5, 1),
    Sketcher.Constraint("Coincident", 5, 2, 0, 1),
    Sketcher.Constraint("Coincident", 6, 1, 7, 1),
    Sketcher.Constraint("Coincident", 7, 2, 8, 2),
    Sketcher.Constraint("Coincident", 8, 1, 9, 1),
    Sketcher.Constraint("Coincident", 9, 2, 6, 2),
    Sketcher.Constraint("Coincident", 10, 2, 11, 1),
    Sketcher.Constraint("Coincident", 11, 2, 12, 1),
    Sketcher.Constraint("Coincident", 12, 2, 13, 1),
    Sketcher.Constraint("Coincident", 13, 2, 10, 1),
    Sketcher.Constraint("Vertical", 0),
    Sketcher.Constraint("Horizontal", 1),
    Sketcher.Constraint("Vertical", 2),
    Sketcher.Constraint("Horizontal", 3),
    Sketcher.Constraint("Horizontal", 5),
    Sketcher.Constraint("Horizontal", 7),
    Sketcher.Constraint("Horizontal", 9),
    Sketcher.Constraint("Horizontal", 10),
    Sketcher.Constraint("Vertical", 11),
    Sketcher.Constraint("Horizontal", 12),
    Sketcher.Constraint("Vertical", 13),
    Sketcher.Constraint("Equal", 6, 8),
    Sketcher.Constraint("Horizontal", 6, 3, 8, 3),
    Sketcher.Constraint("Vertical", 7, 2, 8, 1),
    Sketcher.Constraint("DistanceX", 7, 1, 7, 2, 6.7),
    Sketcher.Constraint("DistanceX", 10, 2, 10, 1, 4.7),
    Sketcher.Constraint("DistanceY", 2, 1, 2, 2, 1.3),
    Sketcher.Constraint("DistanceY", 8, 1, 10, 2, 1.0),
    Sketcher.Constraint("DistanceY", 11, 1, 11, 2, 1.75),
    Sketcher.Constraint("DistanceY", -1, 1, 11, 2, 10.8),
    Sketcher.Constraint("DistanceY", 0, 2, 6, 3, 8.9),
    Sketcher.Constraint("DistanceX", 0, 2, 3, 2, 44.1),
    Sketcher.Constraint("DistanceY", 6, 3, 6, 1, 1.9),
    Sketcher.Constraint("DistanceX", 5, 2, 6, 1, 7.1),
    Sketcher.Constraint("DistanceX", 8, 1, 10, 2, 8.6),
    Sketcher.Constraint("DistanceX", 0, 2, -1, 1, 22.05),
    Sketcher.Constraint("DistanceX", 1, 1, 1, 2, 41.0598),
    Sketcher.Constraint("Radius", 6, 1.953333),
    Sketcher.Constraint("DistanceX", 5, 2, 5, 1, 44.105909),
    Sketcher.Constraint("DistanceY", 0, 2, 0, 1, 12.95273),
])
sketch15.setExpression("Constraints[28]", "Params.sketch15_width")
sketch15.setExpression("Constraints[29]", "Params.sketch15_width2")
sketch15.setExpression("Constraints[30]", "Params.sketch15_height")
sketch15.setExpression("Constraints[32]", "Params.sketch15_height2")
sketch15.setExpression("Constraints[36]", "Params.sketch15_height3")
pad7 = doc.addObject("PartDesign::Pad", "Pad006")
body.addObject(pad7)
pad7.Profile = sketch15
pad7.setExpression("Length", "Params.pad7_length")
pad7.Reversed = True

# Sketch on YZ plane
sketch16 = doc.addObject("Sketcher::SketchObject", "Sketch015")
body.addObject(sketch16)
sketch16.AttachmentSupport = (doc.YZ_Plane, [""])
sketch16.MapMode = "FlatFace"
sketch16.AttachmentOffset = App.Placement(App.Vector(0, 0, -32.05), App.Rotation())
sketch16.addGeometry([
    Part.LineSegment(App.Vector(11.1, 0, 0), App.Vector(13.5, -2.1, 0)),  # 0
    Part.LineSegment(App.Vector(13.5, -2.1, 0), App.Vector(17.2, -2.7, 0)),  # 1
    Part.LineSegment(App.Vector(17.2, -2.7, 0), App.Vector(14.3, 2.5, 0)),  # 2
    Part.ArcOfCircle(Part.Circle(App.Vector(10.7, 3.9, 0), App.Vector(0, 0, 1), 3.9), math.radians(-85), math.radians(-21)),  # 3
    Part.LineSegment(App.Vector(-12.4, -2.6, 0), App.Vector(-14.4, 0, 0)),  # 4
    Part.ArcOfCircle(Part.Circle(App.Vector(-14.1, 3.9, 0), App.Vector(0, 0, 1), 3.9), math.radians(-159), math.radians(-95)),  # 5
    Part.LineSegment(App.Vector(-17.8, 2.5, 0), App.Vector(-20.3, 1.3, 0)),  # 6
    Part.LineSegment(App.Vector(-20.3, 1.3, 0), App.Vector(-16.9, -4.6, 0)),  # 7
    Part.LineSegment(App.Vector(-16.9, -4.6, 0), App.Vector(-12.4, -2.6, 0)),  # 8
], False)
sketch16.addConstraint([
    Sketcher.Constraint("Coincident", 0, 2, 1, 1),
    Sketcher.Constraint("Coincident", 1, 2, 2, 1),
    Sketcher.Constraint("Coincident", 2, 2, 3, 2),
    Sketcher.Constraint("Coincident", 3, 1, 0, 1),
    Sketcher.Constraint("Coincident", 4, 2, 5, 2),
    Sketcher.Constraint("Coincident", 5, 1, 6, 1),
    Sketcher.Constraint("Coincident", 6, 2, 7, 1),
    Sketcher.Constraint("Coincident", 7, 2, 8, 1),
    Sketcher.Constraint("Coincident", 8, 2, 4, 1),
    Sketcher.Constraint("Equal", 3, 5),
    Sketcher.Constraint("PointOnObject", 3, 1, -1),
    Sketcher.Constraint("PointOnObject", 4, 2, -1),
    Sketcher.Constraint("Horizontal", 3, 3, 5, 3),
    Sketcher.Constraint("Horizontal", 2, 2, 5, 1),
    Sketcher.Constraint("DistanceY", -1, 1, 2, 2, 2.5),
    Sketcher.Constraint("DistanceX", 3, 1, 2, 2, 3.3),
    Sketcher.Constraint("DistanceX", 4, 2, 3, 1, 25.5),
    Sketcher.Constraint("DistanceX", -1, 1, 2, 2, 14.35),
    Sketcher.Constraint("Radius", 3, 3.920459),
    Sketcher.Constraint("DistanceY", 0, 2, 3, 3, 6.053699),
    Sketcher.Constraint("Distance", 2, 5.934049),
    Sketcher.Constraint("Distance", 6, 2.845819),
    Sketcher.Constraint("Distance", 8, 4.90142),
    Sketcher.Constraint("DistanceX", -1, 1, 1, 2, 17.199769),
    Sketcher.Constraint("DistanceY", 8, 2, -1, 1, 2.615472),
    Sketcher.Constraint("DistanceX", 6, 2, 5, 3, 6.246519),
    Sketcher.Constraint("DistanceY", 7, 2, 8, 2, 2.03174),
    Sketcher.Constraint("DistanceX", 6, 2, 8, 2, 7.897621),
    Sketcher.Constraint("Distance", 0, 3.234543),
])
pocket9 = doc.addObject("PartDesign::Pocket", "Pocket008")
body.addObject(pocket9)
pocket9.Profile = sketch16
pocket9.setExpression("Length", "Params.pocket9_length")
pocket9.Reversed = True

# Sketch on YZ plane
sketch17 = doc.addObject("Sketcher::SketchObject", "Sketch016")
body.addObject(sketch17)
sketch17.AttachmentSupport = (doc.YZ_Plane, [""])
sketch17.MapMode = "FlatFace"
sketch17.AttachmentOffset = App.Placement(App.Vector(0, 0, -24.25), App.Rotation())
sketch17.addGeometry([
    Part.LineSegment(App.Vector(16.1, -0.2, 0), App.Vector(14.3, 3.6, 0)),  # 0
    Part.ArcOfCircle(Part.Circle(App.Vector(7.4, 7.7, 0), App.Vector(0, 0, 1), 8.1), math.radians(-72), math.radians(-30)),  # 1
    Part.LineSegment(App.Vector(9.8, 0, 0), App.Vector(9.3, -1.3, 0)),  # 2
    Part.LineSegment(App.Vector(9.3, -1.3, 0), App.Vector(16.1, -0.2, 0)),  # 3
    Part.LineSegment(App.Vector(-12.1, -2.4, 0), App.Vector(-13.2, 0, 0)),  # 4
    Part.ArcOfCircle(Part.Circle(App.Vector(-11, 7.4, 0), App.Vector(0, 0, 1), 7.7), math.radians(-150), math.radians(-107)),  # 5
    Part.LineSegment(App.Vector(-17.8, 3.6, 0), App.Vector(-19.6, -1.2, 0)),  # 6
    Part.LineSegment(App.Vector(-19.6, -1.2, 0), App.Vector(-12.1, -2.4, 0)),  # 7
], False)
sketch17.addConstraint([
    Sketcher.Constraint("Coincident", 0, 2, 1, 2),
    Sketcher.Constraint("Coincident", 1, 1, 2, 1),
    Sketcher.Constraint("Coincident", 2, 2, 3, 1),
    Sketcher.Constraint("Coincident", 3, 2, 0, 1),
    Sketcher.Constraint("Coincident", 4, 2, 5, 2),
    Sketcher.Constraint("Coincident", 5, 1, 6, 1),
    Sketcher.Constraint("Coincident", 6, 2, 7, 1),
    Sketcher.Constraint("Coincident", 7, 2, 4, 1),
    Sketcher.Constraint("PointOnObject", 1, 1, -1),
    Sketcher.Constraint("PointOnObject", 4, 2, -1),
    Sketcher.Constraint("Parallel", 0, 4),
    Sketcher.Constraint("Horizontal", 0, 2, 5, 1),
    Sketcher.Constraint("DistanceY", -1, 1, 0, 2, 3.6),
    Sketcher.Constraint("DistanceX", 1, 1, 0, 2, 4.5),
    Sketcher.Constraint("DistanceX", 4, 2, 1, 1, 23.1),
    Sketcher.Constraint("DistanceX", 5, 1, 4, 2, 4.5),
    Sketcher.Constraint("DistanceX", -1, 1, 0, 2, 14.35),
    Sketcher.Constraint("Radius", 1, 8.073671),
    Sketcher.Constraint("Radius", 5, 7.747263),
    Sketcher.Constraint("Distance", 0, 4.230349),
    Sketcher.Constraint("Distance", 3, 6.934419),
    Sketcher.Constraint("DistanceX", 1, 3, 2, 2, 1.89642),
    Sketcher.Constraint("DistanceY", 2, 2, 5, 3, 8.697248),
    Sketcher.Constraint("DistanceY", 6, 2, 5, 3, 8.61991),
    Sketcher.Constraint("DistanceX", 6, 2, 1, 3, 27.02263),
    Sketcher.Constraint("DistanceY", 7, 2, 2, 2, 1.126959),
])
pocket10 = doc.addObject("PartDesign::Pocket", "Pocket009")
body.addObject(pocket10)
pocket10.Profile = sketch17
pocket10.setExpression("Length", "Params.pocket10_length")

# Sketch on YZ plane
sketch18 = doc.addObject("Sketcher::SketchObject", "Sketch017")
body.addObject(sketch18)
sketch18.AttachmentSupport = (doc.YZ_Plane, [""])
sketch18.MapMode = "FlatFace"
sketch18.AttachmentOffset = App.Placement(App.Vector(0, 0, 24.25), App.Rotation())
sketch18.addGeometry([
    Part.LineSegment(App.Vector(-19.4, 3.6, 0), App.Vector(-17.8, 3.6, 0)),  # 0
    Part.ArcOfCircle(Part.Circle(App.Vector(-10.8, 7.7, 0), App.Vector(0, 0, 1), 8.1), math.radians(-150), math.radians(-108)),  # 1
    Part.LineSegment(App.Vector(-13.2, 0, 0), App.Vector(-12.3, -2, 0)),  # 2
    Part.LineSegment(App.Vector(-12.3, -2, 0), App.Vector(-21.3, -2.3, 0)),  # 3
    Part.LineSegment(App.Vector(-21.3, -2.3, 0), App.Vector(-19.4, 3.6, 0)),  # 4
    Part.LineSegment(App.Vector(14.3, 3.6, 0), App.Vector(16.7, 1.3, 0)),  # 5
    Part.LineSegment(App.Vector(16.7, 1.3, 0), App.Vector(8.4, -2.8, 0)),  # 6
    Part.LineSegment(App.Vector(8.4, -2.8, 0), App.Vector(9.8, 0, 0)),  # 7
    Part.ArcOfCircle(Part.Circle(App.Vector(7.3, 7.7, 0), App.Vector(0, 0, 1), 8.1), math.radians(-72), math.radians(-31)),  # 8
], False)
sketch18.addConstraint([
    Sketcher.Constraint("Coincident", 0, 2, 1, 1),
    Sketcher.Constraint("Coincident", 1, 2, 2, 1),
    Sketcher.Constraint("Coincident", 2, 2, 3, 1),
    Sketcher.Constraint("Coincident", 3, 2, 4, 1),
    Sketcher.Constraint("Coincident", 4, 2, 0, 1),
    Sketcher.Constraint("Coincident", 5, 2, 6, 1),
    Sketcher.Constraint("Coincident", 6, 2, 7, 1),
    Sketcher.Constraint("Coincident", 7, 2, 8, 1),
    Sketcher.Constraint("Coincident", 8, 2, 5, 1),
    Sketcher.Constraint("Horizontal", 0),
    Sketcher.Constraint("PointOnObject", 1, 2, -1),
    Sketcher.Constraint("PointOnObject", 7, 2, -1),
    Sketcher.Constraint("Perpendicular", 2, 6),
    Sketcher.Constraint("Horizontal", 4, 2, 8, 2),
    Sketcher.Constraint("Angle", 5, Q("-45 deg")),
    Sketcher.Constraint("DistanceY", -1, 1, 0, 2, 3.6),
    Sketcher.Constraint("DistanceX", 0, 2, 1, 2, 4.5),
    Sketcher.Constraint("DistanceX", 7, 2, 8, 2, 4.5),
    Sketcher.Constraint("DistanceX", 0, 2, -1, 1, 17.75),
    Sketcher.Constraint("DistanceX", -1, 1, 7, 2, 9.85),
    Sketcher.Constraint("Radius", 1, 8.091734),
    Sketcher.Constraint("Radius", 8, 8.133124),
    Sketcher.Constraint("Distance", 4, 6.169801),
    Sketcher.Constraint("DistanceY", 2, 2, 1, 3, 9.659302),
    Sketcher.Constraint("Distance", 2, 2.170409),
    Sketcher.Constraint("Distance", 5, 3.320551),
    Sketcher.Constraint("Distance", 6, 9.264159),
    Sketcher.Constraint("DistanceX", 0, 1, 0, 2, 1.676254),
    Sketcher.Constraint("DistanceX", 3, 2, -1, 1, 21.310589),
])
pocket11 = doc.addObject("PartDesign::Pocket", "Pocket010")
body.addObject(pocket11)
pocket11.Profile = sketch18
pocket11.setExpression("Length", "Params.pocket11_length")
pocket11.Reversed = True

doc.recompute()
